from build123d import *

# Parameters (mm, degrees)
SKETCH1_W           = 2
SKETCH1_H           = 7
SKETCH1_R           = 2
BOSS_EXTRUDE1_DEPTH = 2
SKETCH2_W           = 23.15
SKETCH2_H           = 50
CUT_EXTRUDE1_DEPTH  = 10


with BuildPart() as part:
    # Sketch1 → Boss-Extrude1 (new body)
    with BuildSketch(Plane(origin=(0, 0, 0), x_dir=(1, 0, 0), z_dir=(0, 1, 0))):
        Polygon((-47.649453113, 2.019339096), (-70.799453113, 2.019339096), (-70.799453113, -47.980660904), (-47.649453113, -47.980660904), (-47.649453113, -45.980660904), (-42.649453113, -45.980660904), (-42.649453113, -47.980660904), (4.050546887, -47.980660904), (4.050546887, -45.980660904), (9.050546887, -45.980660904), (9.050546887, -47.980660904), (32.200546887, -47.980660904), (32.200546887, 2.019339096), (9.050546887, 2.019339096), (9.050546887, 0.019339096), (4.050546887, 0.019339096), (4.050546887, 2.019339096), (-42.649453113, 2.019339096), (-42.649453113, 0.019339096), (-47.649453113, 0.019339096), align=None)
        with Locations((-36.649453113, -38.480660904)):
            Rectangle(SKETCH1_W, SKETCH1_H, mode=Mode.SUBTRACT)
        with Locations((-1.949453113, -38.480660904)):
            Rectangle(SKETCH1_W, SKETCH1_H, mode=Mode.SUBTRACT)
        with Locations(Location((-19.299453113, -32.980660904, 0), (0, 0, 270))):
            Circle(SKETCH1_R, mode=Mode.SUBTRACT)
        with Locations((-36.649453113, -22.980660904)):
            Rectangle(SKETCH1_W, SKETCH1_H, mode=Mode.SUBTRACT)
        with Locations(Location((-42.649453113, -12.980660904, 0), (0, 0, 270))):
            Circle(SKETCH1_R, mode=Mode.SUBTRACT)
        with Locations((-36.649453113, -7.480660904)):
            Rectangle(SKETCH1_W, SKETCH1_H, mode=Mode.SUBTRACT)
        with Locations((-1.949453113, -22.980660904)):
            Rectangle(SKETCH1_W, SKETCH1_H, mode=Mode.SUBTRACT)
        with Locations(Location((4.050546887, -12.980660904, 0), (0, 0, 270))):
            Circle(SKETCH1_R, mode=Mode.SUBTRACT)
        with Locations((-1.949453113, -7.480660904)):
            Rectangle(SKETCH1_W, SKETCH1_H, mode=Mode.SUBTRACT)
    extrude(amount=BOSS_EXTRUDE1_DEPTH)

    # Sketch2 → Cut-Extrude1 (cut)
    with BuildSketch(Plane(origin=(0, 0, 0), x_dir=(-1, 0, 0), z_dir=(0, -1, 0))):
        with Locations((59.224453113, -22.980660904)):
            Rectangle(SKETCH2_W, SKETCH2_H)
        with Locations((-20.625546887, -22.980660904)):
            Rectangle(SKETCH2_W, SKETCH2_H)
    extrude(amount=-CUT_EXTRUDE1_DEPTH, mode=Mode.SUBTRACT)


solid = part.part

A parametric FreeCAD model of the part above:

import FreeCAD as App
import Part
import Sketcher

doc = App.newDocument("Part")
body = doc.addObject("PartDesign::Body", "Body")

sketch1 = doc.addObject("Sketcher::SketchObject", "Sketch")
body.addObject(sketch1)
sketch1.AttachmentSupport = (doc.XZ_Plane, [""])
sketch1.MapMode = "FlatFace"
sketch1.addGeometry(Part.LineSegment(App.Vector(-47.6, -2, 0), App.Vector(-70.8, -2, 0)), False)
sketch1.addGeometry(Part.LineSegment(App.Vector(-70.8, -2, 0), App.Vector(-70.8, 48, 0)), False)
sketch1.addGeometry(Part.LineSegment(App.Vector(-70.8, 48, 0), App.Vector(-47.6, 48, 0)), False)
sketch1.addGeometry(Part.LineSegment(App.Vector(-47.6, 48, 0), App.Vector(-47.6, 46, 0)), False)
sketch1.addGeometry(Part.LineSegment(App.Vector(-47.6, 46, 0), App.Vector(-42.6, 46, 0)), False)
sketch1.addGeometry(Part.LineSegment(App.Vector(-42.6, 46, 0), App.Vector(-42.6, 48, 0)), False)
sketch1.addGeometry(Part.LineSegment(App.Vector(-42.6, 48, 0), App.Vector(4.1, 48, 0)), False)
sketch1.addGeometry(Part.LineSegment(App.Vector(4.1, 48, 0), App.Vector(4.1, 46, 0)), False)
sketch1.addGeometry(Part.LineSegment(App.Vector(4.1, 46, 0), App.Vector(9.1, 46, 0)), False)
sketch1.addGeometry(Part.LineSegment(App.Vector(9.1, 46, 0), App.Vector(9.1, 48, 0)), False)
sketch1.addGeometry(Part.LineSegment(App.Vector(9.1, 48, 0), App.Vector(32.2, 48, 0)), False)
sketch1.addGeometry(Part.LineSegment(App.Vector(32.2, 48, 0), App.Vector(32.2, -2, 0)), False)
sketch1.addGeometry(Part.LineSegment(App.Vector(32.2, -2, 0), App.Vector(9.1, -2, 0)), False)
sketch1.addGeometry(Part.LineSegment(App.Vector(9.1, -2, 0), App.Vector(9.1, 0, 0)), False)
sketch1.addGeometry(Part.LineSegment(App.Vector(9.1, 0, 0), App.Vector(4.1, 0, 0)), False)
sketch1.addGeometry(Part.LineSegment(App.Vector(4.1, 0, 0), App.Vector(4.1, -2, 0)), False)
sketch1.addGeometry(Part.LineSegment(App.Vector(4.1, -2, 0), App.Vector(-42.6, -2, 0)), False)
sketch1.addGeometry(Part.LineSegment(App.Vector(-42.6, -2, 0), App.Vector(-42.6, 0, 0)), False)
sketch1.addGeometry(Part.LineSegment(App.Vector(-42.6, 0, 0), App.Vector(-47.6, 0, 0)), False)
sketch1.addGeometry(Part.LineSegment(App.Vector(-47.6, 0, 0), App.Vector(-47.6, -2, 0)), False)
sketch1.addGeometry(Part.LineSegment(App.Vector(-35.6, 42, 0), App.Vector(-37.6, 42, 0)), False)
sketch1.addGeometry(Part.LineSegment(App.Vector(-37.6, 42, 0), App.Vector(-37.6, 35, 0)), False)
sketch1.addGeometry(Part.LineSegment(App.Vector(-37.6, 35, 0), App.Vector(-35.6, 35, 0)), False)
sketch1.addGeometry(Part.LineSegment(App.Vector(-35.6, 35, 0), App.Vector(-35.6, 42, 0)), False)
sketch1.addGeometry(Part.LineSegment(App.Vector(-35.6, 26.5, 0), App.Vector(-37.6, 26.5, 0)), False)
sketch1.addGeometry(Part.LineSegment(App.Vector(-37.6, 26.5, 0), App.Vector(-37.6, 19.5, 0)), False)
sketch1.addGeometry(Part.LineSegment(App.Vector(-37.6, 19.5, 0), App.Vector(-35.6, 19.5, 0)), False)
sketch1.addGeometry(Part.LineSegment(App.Vector(-35.6, 19.5, 0), App.Vector(-35.6, 26.5, 0)), False)
sketch1.addGeometry(Part.Circle(App.Vector(-19.3, 33, 0), App.Vector(0, 0, 1), 2), False)
sketch1.addGeometry(Part.LineSegment(App.Vector(-0.9, 42, 0), App.Vector(-2.9, 42, 0)), False)
sketch1.addGeometry(Part.LineSegment(App.Vector(-2.9, 42, 0), App.Vector(-2.9, 35, 0)), False)
sketch1.addGeometry(Part.LineSegment(App.Vector(-2.9, 35, 0), App.Vector(-0.9, 35, 0)), False)
sketch1.addGeometry(Part.LineSegment(App.Vector(-0.9, 35, 0), App.Vector(-0.9, 42, 0)), False)
sketch1.addGeometry(Part.LineSegment(App.Vector(-0.9, 26.5, 0), App.Vector(-2.9, 26.5, 0)), False)
sketch1.addGeometry(Part.LineSegment(App.Vector(-2.9, 26.5, 0), App.Vector(-2.9, 19.5, 0)), False)
sketch1.addGeometry(Part.LineSegment(App.Vector(-2.9, 19.5, 0), App.Vector(-0.9, 19.5, 0)), False)
sketch1.addGeometry(Part.LineSegment(App.Vector(-0.9, 19.5, 0), App.Vector(-0.9, 26.5, 0)), False)
sketch1.addGeometry(Part.Circle(App.Vector(-42.6, 13, 0), App.Vector(0, 0, 1), 2), False)
sketch1.addGeometry(Part.LineSegment(App.Vector(-35.6, 11, 0), App.Vector(-37.6, 11, 0)), False)
sketch1.addGeometry(Part.LineSegment(App.Vector(-37.6, 11, 0), App.Vector(-37.6, 4, 0)), False)
sketch1.addGeometry(Part.LineSegment(App.Vector(-37.6, 4, 0), App.Vector(-35.6, 4, 0)), False)
sketch1.addGeometry(Part.LineSegment(App.Vector(-35.6, 4, 0), App.Vector(-35.6, 11, 0)), False)
sketch1.addGeometry(Part.Circle(App.Vector(4.1, 13, 0), App.Vector(0, 0, 1), 2), False)
sketch1.addGeometry(Part.LineSegment(App.Vector(-0.9, 11, 0), App.Vector(-2.9, 11, 0)), False)
sketch1.addGeometry(Part.LineSegment(App.Vector(-2.9, 11, 0), App.Vector(-2.9, 4, 0)), False)
sketch1.addGeometry(Part.LineSegment(App.Vector(-2.9, 4, 0), App.Vector(-0.9, 4, 0)), False)
sketch1.addGeometry(Part.LineSegment(App.Vector(-0.9, 4, 0), App.Vector(-0.9, 11, 0)), False)
sketch1.addConstraint(Sketcher.Constraint("Coincident", 0, 2, 1, 1))
sketch1.addConstraint(Sketcher.Constraint("Coincident", 1, 2, 2, 1))
sketch1.addConstraint(Sketcher.Constraint("Coincident", 2, 2, 3, 1))
sketch1.addConstraint(Sketcher.Constraint("Coincident", 3, 2, 4, 1))
sketch1.addConstraint(Sketcher.Constraint("Coincident", 4, 2, 5, 1))
sketch1.addConstraint(Sketcher.Constraint("Coincident", 5, 2, 6, 1))
sketch1.addConstraint(Sketcher.Constraint("Coincident", 6, 2, 7, 1))
sketch1.addConstraint(Sketcher.Constraint("Coincident", 7, 2, 8, 1))
sketch1.addConstraint(Sketcher.Constraint("Coincident", 8, 2, 9, 1))
sketch1.addConstraint(Sketcher.Constraint("Coincident", 9, 2, 10, 1))
sketch1.addConstraint(Sketcher.Constraint("Coincident", 10, 2, 11, 1))
sketch1.addConstraint(Sketcher.Constraint("Coincident", 11, 2, 12, 1))
sketch1.addConstraint(Sketcher.Constraint("Coincident", 12, 2, 13, 1))
sketch1.addConstraint(Sketcher.Constraint("Coincident", 13, 2, 14, 1))
sketch1.addConstraint(Sketcher.Constraint("Coincident", 14, 2, 15, 1))
sketch1.addConstraint(Sketcher.Constraint("Coincident", 15, 2, 16, 1))
sketch1.addConstraint(Sketcher.Constraint("Coincident", 16, 2, 17, 1))
sketch1.addConstraint(Sketcher.Constraint("Coincident", 17, 2, 18, 1))
sketch1.addConstraint(Sketcher.Constraint("Coincident", 18, 2, 19, 1))
sketch1.addConstraint(Sketcher.Constraint("Coincident", 19, 2, 0, 1))
sketch1.addConstraint(Sketcher.Constraint("Coincident", 20, 2, 21, 1))
sketch1.addConstraint(Sketcher.Constraint("Coincident", 21, 2, 22, 1))
sketch1.addConstraint(Sketcher.Constraint("Coincident", 22, 2, 23, 1))
sketch1.addConstraint(Sketcher.Constraint("Coincident", 23, 2, 20, 1))
sketch1.addConstraint(Sketcher.Constraint("Coincident", 24, 2, 25, 1))
sketch1.addConstraint(Sketcher.Constraint("Coincident", 25, 2, 26, 1))
sketch1.addConstraint(Sketcher.Constraint("Coincident", 26, 2, 27, 1))
sketch1.addConstraint(Sketcher.Constraint("Coincident", 27, 2, 24, 1))
sketch1.addConstraint(Sketcher.Constraint("Coincident", 29, 2, 30, 1))
sketch1.addConstraint(Sketcher.Constraint("Coincident", 30, 2, 31, 1))
sketch1.addConstraint(Sketcher.Constraint("Coincident", 31, 2, 32, 1))
sketch1.addConstraint(Sketcher.Constraint("Coincident", 32, 2, 29, 1))
sketch1.addConstraint(Sketcher.Constraint("Coincident", 33, 2, 34, 1))
sketch1.addConstraint(Sketcher.Constraint("Coincident", 34, 2, 35, 1))
sketch1.addConstraint(Sketcher.Constraint("Coincident", 35, 2, 36, 1))
sketch1.addConstraint(Sketcher.Constraint("Coincident", 36, 2, 33, 1))
sketch1.addConstraint(Sketcher.Constraint("Coincident", 38, 2, 39, 1))
sketch1.addConstraint(Sketcher.Constraint("Coincident", 39, 2, 40, 1))
sketch1.addConstraint(Sketcher.Constraint("Coincident", 40, 2, 41, 1))
sketch1.addConstraint(Sketcher.Constraint("Coincident", 41, 2, 38, 1))
sketch1.addConstraint(Sketcher.Constraint("Coincident", 43, 2, 44, 1))
sketch1.addConstraint(Sketcher.Constraint("Coincident", 44, 2, 45, 1))
sketch1.addConstraint(Sketcher.Constraint("Coincident", 45, 2, 46, 1))
sketch1.addConstraint(Sketcher.Constraint("Coincident", 46, 2, 43, 1))
sketch1.addConstraint(Sketcher.Constraint("Horizontal", 0))
sketch1.addConstraint(Sketcher.Constraint("Vertical", 1))
sketch1.addConstraint(Sketcher.Constraint("Horizontal", 2))
sketch1.addConstraint(Sketcher.Constraint("Vertical", 3))
sketch1.addConstraint(Sketcher.Constraint("Horizontal", 4))
sketch1.addConstraint(Sketcher.Constraint("Vertical", 5))
sketch1.addConstraint(Sketcher.Constraint("Horizontal", 6))
sketch1.addConstraint(Sketcher.Constraint("Vertical", 7))
sketch1.addConstraint(Sketcher.Constraint("Horizontal", 8))
sketch1.addConstraint(Sketcher.Constraint("Vertical", 9))
sketch1.addConstraint(Sketcher.Constraint("Horizontal", 10))
sketch1.addConstraint(Sketcher.Constraint("Vertical", 11))
sketch1.addConstraint(Sketcher.Constraint("Horizontal", 12))
sketch1.addConstraint(Sketcher.Constraint("Vertical", 13))
sketch1.addConstraint(Sketcher.Constraint("Horizontal", 14))
sketch1.addConstraint(Sketcher.Constraint("Vertical", 15))
sketch1.addConstraint(Sketcher.Constraint("Horizontal", 16))
sketch1.addConstraint(Sketcher.Constraint("Vertical", 17))
sketch1.addConstraint(Sketcher.Constraint("Horizontal", 18))
sketch1.addConstraint(Sketcher.Constraint("Vertical", 19))
sketch1.addConstraint(Sketcher.Constraint("Horizontal", 20))
sketch1.addConstraint(Sketcher.Constraint("Vertical", 21))
sketch1.addConstraint(Sketcher.Constraint("Horizontal", 22))
sketch1.addConstraint(Sketcher.Constraint("Vertical", 23))
sketch1.addConstraint(Sketcher.Constraint("Horizontal", 24))
sketch1.addConstraint(Sketcher.Constraint("Vertical", 25))
sketch1.addConstraint(Sketcher.Constraint("Horizontal", 26))
sketch1.addConstraint(Sketcher.Constraint("Vertical", 27))
sketch1.addConstraint(Sketcher.Constraint("Horizontal", 29))
sketch1.addConstraint(Sketcher.Constraint("Vertical", 30))
sketch1.addConstraint(Sketcher.Constraint("Horizontal", 31))
sketch1.addConstraint(Sketcher.Constraint("Vertical", 32))
sketch1.addConstraint(Sketcher.Constraint("Horizontal", 33))
sketch1.addConstraint(Sketcher.Constraint("Vertical", 34))
sketch1.addConstraint(Sketcher.Constraint("Horizontal", 35))
sketch1.addConstraint(Sketcher.Constraint("Vertical", 36))
sketch1.addConstraint(Sketcher.Constraint("Horizontal", 38))
sketch1.addConstraint(Sketcher.Constraint("Vertical", 39))
sketch1.addConstraint(Sketcher.Constraint("Horizontal", 40))
sketch1.addConstraint(Sketcher.Constraint("Vertical", 41))
sketch1.addConstraint(Sketcher.Constraint("Horizontal", 43))
sketch1.addConstraint(Sketcher.Constraint("Vertical", 44))
sketch1.addConstraint(Sketcher.Constraint("Horizontal", 45))
sketch1.addConstraint(Sketcher.Constraint("Vertical", 46))
sketch1.addConstraint(Sketcher.Constraint("Equal", 28, 37))
sketch1.addConstraint(Sketcher.Constraint("Equal", 37, 42))
sketch1.addConstraint(Sketcher.Constraint("Horizontal", 37, 3, 42, 3))
sketch1.addConstraint(Sketcher.Constraint("Horizontal", 2, 2, 5, 2))
sketch1.addConstraint(Sketcher.Constraint("Horizontal", 4, 2, 7, 2))
sketch1.addConstraint(Sketcher.Constraint("Horizontal", 6, 2, 9, 2))
sketch1.addConstraint(Sketcher.Constraint("Horizontal", 0, 2, 11, 2))
sketch1.addConstraint(Sketcher.Constraint("Horizontal", 12, 2, 15, 2))
sketch1.addConstraint(Sketcher.Constraint("Horizontal", 14, 2, 17, 2))
sketch1.addConstraint(Sketcher.Constraint("Horizontal", 23, 2, 29, 2))
sketch1.addConstraint(Sketcher.Constraint("Horizontal", 22, 2, 30, 2))
sketch1.addConstraint(Sketcher.Constraint("Horizontal", 27, 2, 33, 2))
sketch1.addConstraint(Sketcher.Constraint("Horizontal", 26, 2, 34, 2))
sketch1.addConstraint(Sketcher.Constraint("Horizontal", 41, 2, 43, 2))
sketch1.addConstraint(Sketcher.Constraint("Horizontal", 40, 2, 44, 2))
sketch1.addConstraint(Sketcher.Constraint("Vertical", 37, 3, 4, 2))
sketch1.addConstraint(Sketcher.Constraint("Vertical", 42, 3, 6, 2))
sketch1.addConstraint(Sketcher.Constraint("Vertical", 9, 2, 12, 2))
sketch1.addConstraint(Sketcher.Constraint("Vertical", 7, 2, 14, 2))
sketch1.addConstraint(Sketcher.Constraint("Vertical", 5, 2, 16, 2))
sketch1.addConstraint(Sketcher.Constraint("Vertical", 3, 2, 18, 2))
sketch1.addConstraint(Sketcher.Constraint("Vertical", 21, 2, 24, 2))
sketch1.addConstraint(Sketcher.Constraint("Vertical", 23, 2, 26, 2))
sketch1.addConstraint(Sketcher.Constraint("Vertical", 30, 2, 33, 2))
sketch1.addConstraint(Sketcher.Constraint("Vertical", 32, 2, 35, 2))
sketch1.addConstraint(Sketcher.Constraint("Vertical", 25, 2, 38, 2))
sketch1.addConstraint(Sketcher.Constraint("Vertical", 27, 2, 40, 2))
sketch1.addConstraint(Sketcher.Constraint("Vertical", 34, 2, 43, 2))
sketch1.addConstraint(Sketcher.Constraint("Vertical", 36, 2, 45, 2))
sketch1.addConstraint(Sketcher.Constraint("Equal", 4, 8))
sketch1.addConstraint(Sketcher.Constraint("Equal", 2, 10))
sketch1.addConstraint(Sketcher.Constraint("Equal", 26, 29))
sketch1.addConstraint(Sketcher.Constraint("Equal", 45, 3))
sketch1.addConstraint(Sketcher.Constraint("Equal", 9, 13))
sketch1.addConstraint(Sketcher.Constraint("Equal", 23, 25))
sketch1.addConstraint(Sketcher.Constraint("Equal", 36, 39))
sketch1.addConstraint(Sketcher.Constraint("Diameter", 28, 4.0))
sketch1.addConstraint(Sketcher.Constraint("DistanceX", 4, 1, 4, 2, 5.0))
sketch1.addConstraint(Sketcher.Constraint("DistanceX", 20, 2, 20, 1, 2.0))
sketch1.addConstraint(Sketcher.Constraint("DistanceY", 1, 1, 1, 2, 50.0))
sketch1.addConstraint(Sketcher.Constraint("DistanceY", 21, 2, 21, 1, 7.0))
sketch1.addConstraint(Sketcher.Constraint("DistanceX", 6, 1, 6, 2, 46.7))
sketch1.addConstraint(Sketcher.Constraint("DistanceY", 37, 3, 28, 3, 20.0))
sketch1.addConstraint(Sketcher.Constraint("DistanceY", 0, 2, 37, 3, 15.0))
sketch1.addConstraint(Sketcher.Constraint("DistanceX", 4, 2, 20, 2, 5.0))
sketch1.addConstraint(Sketcher.Constraint("DistanceY", 20, 2, 4, 2, 4.0))
sketch1.addConstraint(Sketcher.Constraint("DistanceX", 29, 2, 7, 2, 7.0))
sketch1.addConstraint(Sketcher.Constraint("DistanceY", 38, 2, 37, 3, 2.0))
sketch1.addConstraint(Sketcher.Constraint("DistanceX", 0, 2, 0, 1, 23.15))
sketch1.addConstraint(Sketcher.Constraint("DistanceX", 0, 2, 28, 3, 51.5))
sketch1.addConstraint(Sketcher.Constraint("DistanceY", 24, 2, 21, 2, 8.5))
sketch1.addConstraint(Sketcher.Constraint("DistanceY", -1, 1, 28, 3, 32.980661))
sketch1.addConstraint(Sketcher.Constraint("DistanceX", 28, 3, -1, 1, 19.299453))
pad1 = doc.addObject("PartDesign::Pad", "Pad")
body.addObject(pad1)
pad1.Profile = sketch1
pad1.Length = 2
pad1.Reversed = True

sketch2 = doc.addObject("Sketcher::SketchObject", "Sketch001")
body.addObject(sketch2)
sketch2.AttachmentSupport = (doc.XZ_Plane, [""])
sketch2.MapMode = "FlatFace"
sketch2.addGeometry(Part.LineSegment(App.Vector(-48, -2, 0), App.Vector(-48, 48, 0)), False)
sketch2.addGeometry(Part.LineSegment(App.Vector(-48, 48, 0), App.Vector(-71, 48, 0)), False)
sketch2.addGeometry(Part.LineSegment(App.Vector(-71, 48, 0), App.Vector(-71, -2, 0)), False)
sketch2.addGeometry(Part.LineSegment(App.Vector(-71, -2, 0), App.Vector(-48, -2, 0)), False)
sketch2.addGeometry(Part.LineSegment(App.Vector(32, -2, 0), App.Vector(32, 48, 0)), False)
sketch2.addGeometry(Part.LineSegment(App.Vector(32, 48, 0), App.Vector(9, 48, 0)), False)
sketch2.addGeometry(Part.LineSegment(App.Vector(9, 48, 0), App.Vector(9, -2, 0)), False)
sketch2.addGeometry(Part.LineSegment(App.Vector(9, -2, 0), App.Vector(32, -2, 0)), False)
sketch2.addConstraint(Sketcher.Constraint("Coincident", 0, 2, 1, 1))
sketch2.addConstraint(Sketcher.Constraint("Coincident", 1, 2, 2, 1))
sketch2.addConstraint(Sketcher.Constraint("Coincident", 2, 2, 3, 1))
sketch2.addConstraint(Sketcher.Constraint("Coincident", 3, 2, 0, 1))
sketch2.addConstraint(Sketcher.Constraint("Coincident", 4, 2, 5, 1))
sketch2.addConstraint(Sketcher.Constraint("Coincident", 5, 2, 6, 1))
sketch2.addConstraint(Sketcher.Constraint("Coincident", 6, 2, 7, 1))
sketch2.addConstraint(Sketcher.Constraint("Coincident", 7, 2, 4, 1))
sketch2.addConstraint(Sketcher.Constraint("Vertical", 0))
sketch2.addConstraint(Sketcher.Constraint("Horizontal", 1))
sketch2.addConstraint(Sketcher.Constraint("Vertical", 2))
sketch2.addConstraint(Sketcher.Constraint("Horizontal", 3))
sketch2.addConstraint(Sketcher.Constraint("Vertical", 4))
sketch2.addConstraint(Sketcher.Constraint("Horizontal", 5))
sketch2.addConstraint(Sketcher.Constraint("Vertical", 6))
sketch2.addConstraint(Sketcher.Constraint("Horizontal", 7))
sketch2.addConstraint(Sketcher.Constraint("Horizontal", 1, 2, 4, 2))
sketch2.addConstraint(Sketcher.Constraint("Horizontal", 3, 2, 6, 2))
sketch2.addConstraint(Sketcher.Constraint("Equal", 3, 5))
sketch2.addConstraint(Sketcher.Constraint("DistanceY", 0, 1, 0, 2, 50.0))
sketch2.addConstraint(Sketcher.Constraint("DistanceX", 1, 2, 4, 2, 103.0))
sketch2.addConstraint(Sketcher.Constraint("DistanceX", 1, 2, 1, 1, 23.15))
sketch2.addConstraint(Sketcher.Constraint("DistanceY", -1, 1, 0, 2, 47.980661))
sketch2.addConstraint(Sketcher.Constraint("DistanceX", 0, 2, -1, 1, 47.649453))
pocket1 = doc.addObject("PartDesign::Pocket", "Pocket")
body.addObject(pocket1)
pocket1.Profile = sketch2
pocket1.Length = 10

doc.recompute()
